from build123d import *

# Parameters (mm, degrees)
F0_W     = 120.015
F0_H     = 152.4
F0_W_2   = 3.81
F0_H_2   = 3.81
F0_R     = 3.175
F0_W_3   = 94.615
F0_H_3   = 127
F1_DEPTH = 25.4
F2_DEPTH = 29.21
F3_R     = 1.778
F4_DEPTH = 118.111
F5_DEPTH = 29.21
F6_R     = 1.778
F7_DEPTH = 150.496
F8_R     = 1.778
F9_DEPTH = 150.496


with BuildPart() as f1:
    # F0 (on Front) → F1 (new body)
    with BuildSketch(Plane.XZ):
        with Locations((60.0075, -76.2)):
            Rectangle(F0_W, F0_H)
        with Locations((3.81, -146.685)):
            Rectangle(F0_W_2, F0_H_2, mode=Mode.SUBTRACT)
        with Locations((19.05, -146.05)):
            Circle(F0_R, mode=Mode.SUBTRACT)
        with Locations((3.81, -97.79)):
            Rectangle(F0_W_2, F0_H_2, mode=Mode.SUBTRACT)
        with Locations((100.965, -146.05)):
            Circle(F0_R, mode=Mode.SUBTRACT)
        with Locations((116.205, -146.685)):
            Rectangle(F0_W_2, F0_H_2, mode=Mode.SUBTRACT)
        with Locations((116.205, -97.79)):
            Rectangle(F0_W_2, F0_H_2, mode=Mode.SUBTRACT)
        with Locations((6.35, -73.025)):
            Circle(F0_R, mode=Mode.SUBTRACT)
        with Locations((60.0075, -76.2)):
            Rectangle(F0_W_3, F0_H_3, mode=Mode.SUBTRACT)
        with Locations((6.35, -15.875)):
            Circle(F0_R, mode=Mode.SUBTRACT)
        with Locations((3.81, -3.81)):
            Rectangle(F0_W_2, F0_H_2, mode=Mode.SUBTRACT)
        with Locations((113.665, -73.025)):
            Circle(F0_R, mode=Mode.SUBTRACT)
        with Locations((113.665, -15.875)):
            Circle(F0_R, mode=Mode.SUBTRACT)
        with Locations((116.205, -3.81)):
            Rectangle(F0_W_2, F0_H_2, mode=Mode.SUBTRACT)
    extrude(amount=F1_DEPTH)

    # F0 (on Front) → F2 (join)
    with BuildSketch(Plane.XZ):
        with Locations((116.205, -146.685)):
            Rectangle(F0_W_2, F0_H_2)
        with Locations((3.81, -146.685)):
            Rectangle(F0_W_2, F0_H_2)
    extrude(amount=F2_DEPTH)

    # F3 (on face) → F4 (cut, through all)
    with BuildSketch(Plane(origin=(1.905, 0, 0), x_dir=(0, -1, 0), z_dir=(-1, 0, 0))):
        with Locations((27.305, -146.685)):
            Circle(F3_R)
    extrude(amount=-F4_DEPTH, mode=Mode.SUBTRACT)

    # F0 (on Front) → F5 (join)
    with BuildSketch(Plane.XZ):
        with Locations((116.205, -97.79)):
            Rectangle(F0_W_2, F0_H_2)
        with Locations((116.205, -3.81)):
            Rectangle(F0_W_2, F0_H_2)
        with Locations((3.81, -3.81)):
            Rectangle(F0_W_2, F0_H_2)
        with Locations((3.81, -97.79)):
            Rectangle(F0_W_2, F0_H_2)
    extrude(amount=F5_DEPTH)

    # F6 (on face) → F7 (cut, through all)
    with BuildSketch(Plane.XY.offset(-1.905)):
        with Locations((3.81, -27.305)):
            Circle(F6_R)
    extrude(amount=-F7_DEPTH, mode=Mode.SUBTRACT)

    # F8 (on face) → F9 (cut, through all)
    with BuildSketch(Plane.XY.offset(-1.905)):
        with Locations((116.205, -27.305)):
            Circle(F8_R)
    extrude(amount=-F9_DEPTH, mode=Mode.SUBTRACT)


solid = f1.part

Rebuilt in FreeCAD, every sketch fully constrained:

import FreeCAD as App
import Part
import Sketcher

V = App.Vector
Q = App.Units.Quantity


def add_polygon(sketch, points):
    """Adds a closed chain of lines whose ends are joined by coincident constraints."""
    first, n = sketch.GeometryCount, len(points)
    for a, b in zip(points, points[1:] + points[:1]):
        sketch.addGeometry(Part.LineSegment(App.Vector(*a, 0), App.Vector(*b, 0)), False)
    for i in range(n):
        sketch.addConstraint(Sketcher.Constraint("Coincident", first + i, 2, first + (i + 1) % n, 1))

doc = App.newDocument("Part")
body = doc.addObject("PartDesign::Body", "Body")

sketch1 = body.newObject("Sketcher::SketchObject", "Sketch")
sketch1.AttachmentSupport = (doc.getObject("XZ_Plane"), [""])
sketch1.MapMode = "FlatFace"
add_polygon(sketch1, [(0, 0), (0, -152.4), (120, -152.4), (120, 0)])
add_polygon(sketch1, [(5.7, -148.6), (1.9, -148.6), (1.9, -144.8), (5.7, -144.8)])
sketch1.addGeometry(Part.Circle(V(19.1, -146.1, 0), V(0, 0, 1), 3.2), False)
add_polygon(sketch1, [(5.7, -99.7), (1.9, -99.7), (1.9, -95.9), (5.7, -95.9)])
sketch1.addGeometry(Part.Circle(V(101, -146.1, 0), V(0, 0, 1), 3.2), False)
add_polygon(sketch1, [(118.1, -148.6), (114.3, -148.6), (114.3, -144.8), (118.1, -144.8)])
add_polygon(sketch1, [(107.3, -139.7), (12.7, -139.7), (12.7, -12.7), (107.3, -12.7)])
add_polygon(sketch1, [(118.1, -99.7), (114.3, -99.7), (114.3, -95.9), (118.1, -95.9)])
sketch1.addGeometry(Part.Circle(V(6.3, -73, 0), V(0, 0, 1), 3.2), False)
sketch1.addGeometry(Part.Circle(V(6.3, -15.9, 0), V(0, 0, 1), 3.2), False)
add_polygon(sketch1, [(5.7, -5.7), (1.9, -5.7), (1.9, -1.9), (5.7, -1.9)])
sketch1.addGeometry(Part.Circle(V(113.7, -73, 0), V(0, 0, 1), 3.2), False)
sketch1.addGeometry(Part.Circle(V(113.7, -15.9, 0), V(0, 0, 1), 3.2), False)
add_polygon(sketch1, [(118.1, -5.7), (114.3, -5.7), (114.3, -1.9), (118.1, -1.9)])
sketch1.addConstraint(Sketcher.Constraint("Vertical", 0))
sketch1.addConstraint(Sketcher.Constraint("Horizontal", 1))
sketch1.addConstraint(Sketcher.Constraint("Vertical", 2))
sketch1.addConstraint(Sketcher.Constraint("Horizontal", 3))
sketch1.addConstraint(Sketcher.Constraint("Horizontal", 4))
sketch1.addConstraint(Sketcher.Constraint("Vertical", 5))
sketch1.addConstraint(Sketcher.Constraint("Horizontal", 6))
sketch1.addConstraint(Sketcher.Constraint("Vertical", 7))
sketch1.addConstraint(Sketcher.Constraint("Horizontal", 9))
sketch1.addConstraint(Sketcher.Constraint("Vertical", 10))
sketch1.addConstraint(Sketcher.Constraint("Horizontal", 11))
sketch1.addConstraint(Sketcher.Constraint("Vertical", 12))
sketch1.addConstraint(Sketcher.Constraint("Horizontal", 14))
sketch1.addConstraint(Sketcher.Constraint("Vertical", 15))
sketch1.addConstraint(Sketcher.Constraint("Horizontal", 16))
sketch1.addConstraint(Sketcher.Constraint("Vertical", 17))
sketch1.addConstraint(Sketcher.Constraint("Horizontal", 18))
sketch1.addConstraint(Sketcher.Constraint("Vertical", 19))
sketch1.addConstraint(Sketcher.Constraint("Horizontal", 20))
sketch1.addConstraint(Sketcher.Constraint("Vertical", 21))
sketch1.addConstraint(Sketcher.Constraint("Horizontal", 22))
sketch1.addConstraint(Sketcher.Constraint("Vertical", 23))
sketch1.addConstraint(Sketcher.Constraint("Horizontal", 24))
sketch1.addConstraint(Sketcher.Constraint("Vertical", 25))
sketch1.addConstraint(Sketcher.Constraint("Horizontal", 28))
sketch1.addConstraint(Sketcher.Constraint("Vertical", 29))
sketch1.addConstraint(Sketcher.Constraint("Horizontal", 30))
sketch1.addConstraint(Sketcher.Constraint("Vertical", 31))
sketch1.addConstraint(Sketcher.Constraint("Horizontal", 34))
sketch1.addConstraint(Sketcher.Constraint("Vertical", 35))
sketch1.addConstraint(Sketcher.Constraint("Horizontal", 36))
sketch1.addConstraint(Sketcher.Constraint("Vertical", 37))
sketch1.addConstraint(Sketcher.Constraint("Coincident", 3, 2, -1, 1))
sketch1.addConstraint(Sketcher.Constraint("Equal", 8, 13))
sketch1.addConstraint(Sketcher.Constraint("Equal", 13, 26))
sketch1.addConstraint(Sketcher.Constraint("Equal", 26, 27))
sketch1.addConstraint(Sketcher.Constraint("Equal", 27, 32))
sketch1.addConstraint(Sketcher.Constraint("Equal", 32, 33))
sketch1.addConstraint(Sketcher.Constraint("Horizontal", 8, 3, 13, 3))
sketch1.addConstraint(Sketcher.Constraint("Horizontal", 26, 3, 32, 3))
sketch1.addConstraint(Sketcher.Constraint("Horizontal", 27, 3, 33, 3))
sketch1.addConstraint(Sketcher.Constraint("Horizontal", 7, 2, 14, 2))
sketch1.addConstraint(Sketcher.Constraint("Horizontal", 6, 2, 15, 2))
sketch1.addConstraint(Sketcher.Constraint("Horizontal", 12, 2, 22, 2))
sketch1.addConstraint(Sketcher.Constraint("Horizontal", 11, 2, 23, 2))
sketch1.addConstraint(Sketcher.Constraint("Horizontal", 31, 2, 34, 2))
sketch1.addConstraint(Sketcher.Constraint("Horizontal", 30, 2, 35, 2))
sketch1.addConstraint(Sketcher.Constraint("Vertical", 26, 3, 27, 3))
sketch1.addConstraint(Sketcher.Constraint("Vertical", 32, 3, 33, 3))
sketch1.addConstraint(Sketcher.Constraint("Vertical", 5, 2, 9, 2))
sketch1.addConstraint(Sketcher.Constraint("Vertical", 7, 2, 11, 2))
sketch1.addConstraint(Sketcher.Constraint("Vertical", 15, 2, 22, 2))
sketch1.addConstraint(Sketcher.Constraint("Vertical", 17, 2, 24, 2))
sketch1.addConstraint(Sketcher.Constraint("Vertical", 10, 2, 28, 2))
sketch1.addConstraint(Sketcher.Constraint("Vertical", 12, 2, 30, 2))
sketch1.addConstraint(Sketcher.Constraint("Vertical", 23, 2, 34, 2))
sketch1.addConstraint(Sketcher.Constraint("Vertical", 25, 2, 36, 2))
sketch1.addConstraint(Sketcher.Constraint("Equal", 11, 14))
sketch1.addConstraint(Sketcher.Constraint("Equal", 36, 5))
sketch1.addConstraint(Sketcher.Constraint("Equal", 7, 10))
sketch1.addConstraint(Sketcher.Constraint("Equal", 25, 29))
sketch1.addConstraint(Sketcher.Constraint("Diameter", 8, Q("0.25 in")))
sketch1.addConstraint(Sketcher.Constraint("DistanceY", 0, 2, 0, 1, Q("6 in")))
sketch1.addConstraint(Sketcher.Constraint("DistanceY", 19, 1, 19, 2, Q("5 in")))
sketch1.addConstraint(Sketcher.Constraint("DistanceX", 4, 2, 4, 1, Q("0.15 in")))
sketch1.addConstraint(Sketcher.Constraint("DistanceY", 5, 2, -1, 1, Q("5.7 in")))
sketch1.addConstraint(Sketcher.Constraint("DistanceX", -1, 1, 14, 2, Q("4.5 in")))
sketch1.addConstraint(Sketcher.Constraint("DistanceX", -1, 1, 18, 2, Q("0.5 in")))
sketch1.addConstraint(Sketcher.Constraint("DistanceY", 18, 2, -1, 1, Q("5.5 in")))
sketch1.addConstraint(Sketcher.Constraint("DistanceX", 26, 3, 8, 3, Q("0.5 in")))
sketch1.addConstraint(Sketcher.Constraint("DistanceX", 13, 3, 32, 3, Q("0.5 in")))
sketch1.addConstraint(Sketcher.Constraint("DistanceY", 4, 2, 8, 3, Q("0.1 in")))
sketch1.addConstraint(Sketcher.Constraint("DistanceX", 4, 2, 13, 3, Q("3.9 in")))
sketch1.addConstraint(Sketcher.Constraint("DistanceY", 10, 2, 26, 3, Q("0.9 in")))
sketch1.addConstraint(Sketcher.Constraint("DistanceX", 20, 2, 2, 2, Q("0.5 in")))
sketch1.addConstraint(Sketcher.Constraint("DistanceY", 27, 3, 28, 2, Q("0.4 in")))
sketch1.addConstraint(Sketcher.Constraint("DistanceY", 26, 3, 29, 2, Q("2.8 in")))
sketch1.addConstraint(Sketcher.Constraint("DistanceX", 1, 1, 1, 2, Q("4.725 in")))
sketch1.addConstraint(Sketcher.Constraint("DistanceX", -1, 1, 8, 3, Q("0.75 in")))
sketch1.addConstraint(Sketcher.Constraint("DistanceX", 13, 3, 1, 2, Q("0.75 in")))
sketch1.addConstraint(Sketcher.Constraint("DistanceY", 26, 3, -1, 1, Q("2.875 in")))
pad1 = body.newObject("PartDesign::Pad", "Pad")
pad1.Profile = sketch1
pad1.Length = Q("1 in")

sketch2 = body.newObject("Sketcher::SketchObject", "Sketch001")
sketch2.AttachmentSupport = (doc.getObject("XZ_Plane"), [""])
sketch2.MapMode = "FlatFace"
add_polygon(sketch2, [(114.3, -144.8), (114.3, -148.6), (118.1, -148.6), (118.1, -144.8)])
add_polygon(sketch2, [(1.9, -144.8), (1.9, -148.6), (5.7, -148.6), (5.7, -144.8)])
sketch2.addConstraint(Sketcher.Constraint("Vertical", 0))
sketch2.addConstraint(Sketcher.Constraint("Horizontal", 1))
sketch2.addConstraint(Sketcher.Constraint("Vertical", 2))
sketch2.addConstraint(Sketcher.Constraint("Horizontal", 3))
sketch2.addConstraint(Sketcher.Constraint("Vertical", 4))
sketch2.addConstraint(Sketcher.Constraint("Horizontal", 5))
sketch2.addConstraint(Sketcher.Constraint("Vertical", 6))
sketch2.addConstraint(Sketcher.Constraint("Horizontal", 7))
sketch2.addConstraint(Sketcher.Constraint("Horizontal", 1, 2, 4, 2))
sketch2.addConstraint(Sketcher.Constraint("Horizontal", 3, 2, 6, 2))
sketch2.addConstraint(Sketcher.Constraint("Equal", 3, 5))
sketch2.addConstraint(Sketcher.Constraint("Equal", 7, 0))
sketch2.addConstraint(Sketcher.Constraint("DistanceX", 1, 1, 1, 2, Q("0.15 in")))
sketch2.addConstraint(Sketcher.Constraint("DistanceX", -1, 1, 0, 2, Q("4.5 in")))
sketch2.addConstraint(Sketcher.Constraint("DistanceY", 2, 2, -1, 1, Q("5.7 in")))
sketch2.addConstraint(Sketcher.Constraint("DistanceX", -1, 1, 4, 2, Q("0.075 in")))
pad2 = body.newObject("PartDesign::Pad", "Pad001")
pad2.Profile = sketch2
pad2.Length = Q("1.15 in")

sketch3 = body.newObject("Sketcher::SketchObject", "Sketch002")
sketch3.AttachmentSupport = (doc.getObject("YZ_Plane"), [""])
sketch3.MapMode = "FlatFace"
sketch3.AttachmentOffset = App.Placement(V(0, 0, 0.075 * 25.4), App.Rotation())
sketch3.addGeometry(Part.Circle(V(-27.3, -146.7, 0), V(0, 0, 1), 1.8), False)
sketch3.addConstraint(Sketcher.Constraint("Diameter", 0, Q("0.14 in")))
sketch3.addConstraint(Sketcher.Constraint("DistanceX", 0, 3, -1, 1, Q("1.075 in")))
sketch3.addConstraint(Sketcher.Constraint("DistanceY", 0, 3, -1, 1, Q("5.775 in")))
pocket1 = body.newObject("PartDesign::Pocket", "Pocket")
pocket1.Profile = sketch3
pocket1.Type = "ThroughAll"
pocket1.Reversed = True

sketch4 = body.newObject("Sketcher::SketchObject", "Sketch003")
sketch4.AttachmentSupport = (doc.getObject("XZ_Plane"), [""])
sketch4.MapMode = "FlatFace"
add_polygon(sketch4, [(114.3, -95.9), (114.3, -99.7), (118.1, -99.7), (118.1, -95.9)])
add_polygon(sketch4, [(114.3, -1.9), (114.3, -5.7), (118.1, -5.7), (118.1, -1.9)])
add_polygon(sketch4, [(1.9, -1.9), (1.9, -5.7), (5.7, -5.7), (5.7, -1.9)])
add_polygon(sketch4, [(1.9, -95.9), (1.9, -99.7), (5.7, -99.7), (5.7, -95.9)])
sketch4.addConstraint(Sketcher.Constraint("Vertical", 0))
sketch4.addConstraint(Sketcher.Constraint("Horizontal", 1))
sketch4.addConstraint(Sketcher.Constraint("Vertical", 2))
sketch4.addConstraint(Sketcher.Constraint("Horizontal", 3))
sketch4.addConstraint(Sketcher.Constraint("Vertical", 4))
sketch4.addConstraint(Sketcher.Constraint("Horizontal", 5))
sketch4.addConstraint(Sketcher.Constraint("Vertical", 6))
sketch4.addConstraint(Sketcher.Constraint("Horizontal", 7))
sketch4.addConstraint(Sketcher.Constraint("Vertical", 8))
sketch4.addConstraint(Sketcher.Constraint("Horizontal", 9))
sketch4.addConstraint(Sketcher.Constraint("Vertical", 10))
sketch4.addConstraint(Sketcher.Constraint("Horizontal", 11))
sketch4.addConstraint(Sketcher.Constraint("Vertical", 12))
sketch4.addConstraint(Sketcher.Constraint("Horizontal", 13))
sketch4.addConstraint(Sketcher.Constraint("Vertical", 14))
sketch4.addConstraint(Sketcher.Constraint("Horizontal", 15))
sketch4.addConstraint(Sketcher.Constraint("Horizontal", 5, 2, 8, 2))
sketch4.addConstraint(Sketcher.Constraint("Horizontal", 7, 2, 10, 2))
sketch4.addConstraint(Sketcher.Constraint("Horizontal", 1, 2, 12, 2))
sketch4.addConstraint(Sketcher.Constraint("Horizontal", 3, 2, 14, 2))
sketch4.addConstraint(Sketcher.Constraint("Vertical", 3, 2, 4, 2))
sketch4.addConstraint(Sketcher.Constraint("Vertical", 2, 2, 5, 2))
sketch4.addConstraint(Sketcher.Constraint("Vertical", 11, 2, 12, 2))
sketch4.addConstraint(Sketcher.Constraint("Vertical", 10, 2, 13, 2))
sketch4.addConstraint(Sketcher.Constraint("Equal", 7, 9))
sketch4.addConstraint(Sketcher.Constraint("Equal", 15, 0))
sketch4.addConstraint(Sketcher.Constraint("Equal", 2, 4))
sketch4.addConstraint(Sketcher.Constraint("DistanceX", 1, 1, 1, 2, Q("0.15 in")))
sketch4.addConstraint(Sketcher.Constraint("DistanceX", -1, 1, 0, 2, Q("4.5 in")))
sketch4.addConstraint(Sketcher.Constraint("DistanceY", 0, 2, 4, 2, Q("3.7 in")))
sketch4.addConstraint(Sketcher.Constraint("DistanceY", 0, 2, -1, 1, Q("3.925 in")))
sketch4.addConstraint(Sketcher.Constraint("DistanceX", -1, 1, 8, 2, Q("0.075 in")))
pad3 = body.newObject("PartDesign::Pad", "Pad002")
pad3.Profile = sketch4
pad3.Length = Q("1.15 in")

sketch5 = body.newObject("Sketcher::SketchObject", "Sketch004")
sketch5.AttachmentSupport = (doc.getObject("XY_Plane"), [""])
sketch5.MapMode = "FlatFace"
sketch5.AttachmentOffset = App.Placement(V(0, 0, -0.075 * 25.4), App.Rotation())
sketch5.addGeometry(Part.Circle(V(3.8, -27.3, 0), V(0, 0, 1), 1.8), False)
sketch5.addConstraint(Sketcher.Constraint("Diameter", 0, Q("0.14 in")))
sketch5.addConstraint(Sketcher.Constraint("DistanceX", -1, 1, 0, 3, Q("0.15 in")))
sketch5.addConstraint(Sketcher.Constraint("DistanceY", 0, 3, -1, 1, Q("1.075 in")))
pocket2 = body.newObject("PartDesign::Pocket", "Pocket001")
pocket2.Profile = sketch5
pocket2.Type = "ThroughAll"

sketch6 = body.newObject("Sketcher::SketchObject", "Sketch005")
sketch6.AttachmentSupport = (doc.getObject("XY_Plane"), [""])
sketch6.MapMode = "FlatFace"
sketch6.AttachmentOffset = App.Placement(V(0, 0, -0.075 * 25.4), App.Rotation())
sketch6.addGeometry(Part.Circle(V(116.2, -27.3, 0), V(0, 0, 1), 1.8), False)
sketch6.addConstraint(Sketcher.Constraint("Diameter", 0, Q("0.14 in")))
sketch6.addConstraint(Sketcher.Constraint("DistanceX", -1, 1, 0, 3, Q("4.575 in")))
sketch6.addConstraint(Sketcher.Constraint("DistanceY", 0, 3, -1, 1, Q("1.075 in")))
pocket3 = body.newObject("PartDesign::Pocket", "Pocket002")
pocket3.Profile = sketch6
pocket3.Type = "ThroughAll"

doc.recompute()
